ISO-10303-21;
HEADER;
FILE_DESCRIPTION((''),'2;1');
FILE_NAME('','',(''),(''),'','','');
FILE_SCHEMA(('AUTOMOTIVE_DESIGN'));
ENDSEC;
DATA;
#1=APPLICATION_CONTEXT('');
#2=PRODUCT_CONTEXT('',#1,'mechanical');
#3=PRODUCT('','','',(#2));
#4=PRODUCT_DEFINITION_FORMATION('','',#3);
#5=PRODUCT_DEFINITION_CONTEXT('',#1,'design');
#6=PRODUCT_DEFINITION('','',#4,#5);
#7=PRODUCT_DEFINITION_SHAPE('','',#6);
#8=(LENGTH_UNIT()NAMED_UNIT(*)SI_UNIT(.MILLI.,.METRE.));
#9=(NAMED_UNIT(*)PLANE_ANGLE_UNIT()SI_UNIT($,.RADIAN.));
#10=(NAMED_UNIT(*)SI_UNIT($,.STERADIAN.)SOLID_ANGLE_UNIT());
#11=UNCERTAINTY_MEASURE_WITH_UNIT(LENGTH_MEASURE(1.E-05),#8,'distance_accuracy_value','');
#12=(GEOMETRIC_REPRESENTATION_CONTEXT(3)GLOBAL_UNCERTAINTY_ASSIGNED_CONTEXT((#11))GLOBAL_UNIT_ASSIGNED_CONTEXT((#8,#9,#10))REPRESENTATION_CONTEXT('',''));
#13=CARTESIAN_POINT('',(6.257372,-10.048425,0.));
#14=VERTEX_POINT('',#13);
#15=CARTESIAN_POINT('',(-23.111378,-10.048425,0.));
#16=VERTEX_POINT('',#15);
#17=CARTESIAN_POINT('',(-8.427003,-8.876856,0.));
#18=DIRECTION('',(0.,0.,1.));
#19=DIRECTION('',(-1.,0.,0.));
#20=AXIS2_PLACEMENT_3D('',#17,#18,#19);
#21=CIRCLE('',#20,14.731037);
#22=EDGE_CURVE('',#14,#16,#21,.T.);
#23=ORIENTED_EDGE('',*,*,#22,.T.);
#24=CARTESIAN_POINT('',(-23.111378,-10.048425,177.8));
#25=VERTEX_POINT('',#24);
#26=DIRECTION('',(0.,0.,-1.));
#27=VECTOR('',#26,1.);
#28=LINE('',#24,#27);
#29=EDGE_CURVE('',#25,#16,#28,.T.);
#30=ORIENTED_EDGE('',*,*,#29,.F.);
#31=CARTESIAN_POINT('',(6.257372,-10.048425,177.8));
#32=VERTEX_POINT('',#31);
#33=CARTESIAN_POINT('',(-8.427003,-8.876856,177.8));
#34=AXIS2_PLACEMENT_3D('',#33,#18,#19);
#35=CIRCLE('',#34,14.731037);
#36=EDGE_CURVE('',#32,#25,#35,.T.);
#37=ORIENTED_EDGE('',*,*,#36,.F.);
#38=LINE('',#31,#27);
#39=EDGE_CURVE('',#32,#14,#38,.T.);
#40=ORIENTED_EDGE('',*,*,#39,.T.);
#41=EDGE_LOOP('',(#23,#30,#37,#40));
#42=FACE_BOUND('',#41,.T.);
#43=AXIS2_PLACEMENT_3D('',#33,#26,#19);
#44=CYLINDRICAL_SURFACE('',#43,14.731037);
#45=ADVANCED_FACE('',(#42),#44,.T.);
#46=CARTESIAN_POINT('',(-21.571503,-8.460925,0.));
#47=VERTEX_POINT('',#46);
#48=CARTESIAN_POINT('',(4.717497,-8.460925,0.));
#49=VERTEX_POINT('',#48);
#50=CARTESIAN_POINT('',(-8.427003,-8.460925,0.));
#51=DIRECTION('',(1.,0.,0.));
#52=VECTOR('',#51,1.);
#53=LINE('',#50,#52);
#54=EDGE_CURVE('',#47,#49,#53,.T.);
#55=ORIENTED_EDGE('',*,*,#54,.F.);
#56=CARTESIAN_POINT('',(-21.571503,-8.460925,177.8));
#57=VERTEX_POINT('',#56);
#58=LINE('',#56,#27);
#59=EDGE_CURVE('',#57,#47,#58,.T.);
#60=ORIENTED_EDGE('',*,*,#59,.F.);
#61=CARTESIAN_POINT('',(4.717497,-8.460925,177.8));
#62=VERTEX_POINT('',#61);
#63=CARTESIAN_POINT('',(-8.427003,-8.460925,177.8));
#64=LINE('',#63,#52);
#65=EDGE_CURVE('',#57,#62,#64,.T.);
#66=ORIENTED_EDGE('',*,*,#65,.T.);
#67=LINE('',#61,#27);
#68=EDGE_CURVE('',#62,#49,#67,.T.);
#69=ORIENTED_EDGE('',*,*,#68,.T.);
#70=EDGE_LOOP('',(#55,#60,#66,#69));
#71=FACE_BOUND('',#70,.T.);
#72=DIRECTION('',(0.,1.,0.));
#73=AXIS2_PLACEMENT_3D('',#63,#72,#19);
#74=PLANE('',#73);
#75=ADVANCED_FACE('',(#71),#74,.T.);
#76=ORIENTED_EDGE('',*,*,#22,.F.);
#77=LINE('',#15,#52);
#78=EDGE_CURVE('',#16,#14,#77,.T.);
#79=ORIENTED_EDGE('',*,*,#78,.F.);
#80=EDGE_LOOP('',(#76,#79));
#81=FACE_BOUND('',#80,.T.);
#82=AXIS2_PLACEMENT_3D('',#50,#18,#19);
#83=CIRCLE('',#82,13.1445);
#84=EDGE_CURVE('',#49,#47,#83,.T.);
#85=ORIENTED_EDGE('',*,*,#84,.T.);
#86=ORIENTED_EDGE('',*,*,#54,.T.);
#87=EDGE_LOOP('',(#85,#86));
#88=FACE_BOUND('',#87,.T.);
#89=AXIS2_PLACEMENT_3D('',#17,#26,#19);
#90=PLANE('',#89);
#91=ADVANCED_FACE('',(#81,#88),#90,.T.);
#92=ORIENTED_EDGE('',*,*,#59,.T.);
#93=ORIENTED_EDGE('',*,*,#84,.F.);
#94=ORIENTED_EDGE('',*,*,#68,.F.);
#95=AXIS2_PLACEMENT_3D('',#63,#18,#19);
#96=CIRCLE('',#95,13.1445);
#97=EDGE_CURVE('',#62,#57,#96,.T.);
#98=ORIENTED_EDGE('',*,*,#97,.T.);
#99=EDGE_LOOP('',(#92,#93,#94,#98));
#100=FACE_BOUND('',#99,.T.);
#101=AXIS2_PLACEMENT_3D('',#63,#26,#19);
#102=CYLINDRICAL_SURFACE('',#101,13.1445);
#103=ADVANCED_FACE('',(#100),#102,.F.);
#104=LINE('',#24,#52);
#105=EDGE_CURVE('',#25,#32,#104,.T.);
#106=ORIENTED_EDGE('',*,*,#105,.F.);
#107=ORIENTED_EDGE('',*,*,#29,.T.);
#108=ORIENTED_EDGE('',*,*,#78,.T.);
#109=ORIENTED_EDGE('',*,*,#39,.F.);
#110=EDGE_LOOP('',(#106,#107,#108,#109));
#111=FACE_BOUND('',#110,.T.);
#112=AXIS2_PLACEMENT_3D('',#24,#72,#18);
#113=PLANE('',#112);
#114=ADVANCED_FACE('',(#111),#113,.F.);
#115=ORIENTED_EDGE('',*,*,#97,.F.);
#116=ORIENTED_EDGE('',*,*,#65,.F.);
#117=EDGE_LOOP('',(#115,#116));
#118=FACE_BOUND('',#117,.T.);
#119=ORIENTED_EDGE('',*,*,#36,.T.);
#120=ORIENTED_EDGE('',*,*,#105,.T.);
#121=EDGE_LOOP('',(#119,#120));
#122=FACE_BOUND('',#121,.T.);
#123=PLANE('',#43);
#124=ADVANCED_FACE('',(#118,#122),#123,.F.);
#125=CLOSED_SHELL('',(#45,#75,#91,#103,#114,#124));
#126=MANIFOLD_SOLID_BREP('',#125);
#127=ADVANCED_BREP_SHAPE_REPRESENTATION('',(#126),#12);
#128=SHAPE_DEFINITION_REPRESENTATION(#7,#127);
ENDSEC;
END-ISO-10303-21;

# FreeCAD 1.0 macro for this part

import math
import FreeCAD as App
import Part
import Sketcher
from FreeCAD import Vector
Q = App.Units.Quantity

doc = App.newDocument("Part")
body = doc.addObject("PartDesign::Body", "Body")

# Sketch on XY plane
sketch1 = doc.addObject("Sketcher::SketchObject", "Sketch")
body.addObject(sketch1)
sketch1.AttachmentSupport = (doc.XY_Plane, [""])
sketch1.MapMode = "FlatFace"
sketch1.addGeometry([
    Part.LineSegment(Vector(-23, -10, 0), Vector(6, -10, 0)),
    Part.ArcOfCircle(Part.Circle(Vector(-8, -9, 0), Vector(0, 0, 1), 15), math.radians(-5), math.radians(185)),
    Part.LineSegment(Vector(5, -8, 0), Vector(-22, -8, 0)),
    Part.ArcOfCircle(Part.Circle(Vector(-8, -8, 0), Vector(0, 0, 1), 13), math.radians(0), math.radians(180)),
], False)
sketch1.addConstraint([
    Sketcher.Constraint("Coincident", 0, 1, 1, 2),
    Sketcher.Constraint("Coincident", 1, 1, 0, 2),
    Sketcher.Constraint("Coincident", 2, 1, 3, 1),
    Sketcher.Constraint("Coincident", 3, 2, 2, 2),
    Sketcher.Constraint("Horizontal", 0),
    Sketcher.Constraint("Horizontal", 2),
    Sketcher.Constraint("Horizontal", 3, 3, 2, 1),
    Sketcher.Constraint("Vertical", 1, 3, 3, 3),
    Sketcher.Constraint("Radius", 3, Q("0.5175 in")),
    Sketcher.Constraint("DistanceX", 0, 1, 0, 2, Q("1.15625 in")),
    Sketcher.Constraint("DistanceY", 0, 1, 3, 3, Q("0.0625 in")),
    Sketcher.Constraint("Radius", 1, Q("14.731037 mm")),
    Sketcher.Constraint("DistanceX", 1, 3, -1, 1, Q("8.427003 mm")),
    Sketcher.Constraint("DistanceY", 1, 3, -1, 1, Q("8.876856 mm")),
])
pad1 = doc.addObject("PartDesign::Pad", "Pad")
body.addObject(pad1)
pad1.Profile = sketch1
pad1.Length = Q("7 in")

doc.recompute()
